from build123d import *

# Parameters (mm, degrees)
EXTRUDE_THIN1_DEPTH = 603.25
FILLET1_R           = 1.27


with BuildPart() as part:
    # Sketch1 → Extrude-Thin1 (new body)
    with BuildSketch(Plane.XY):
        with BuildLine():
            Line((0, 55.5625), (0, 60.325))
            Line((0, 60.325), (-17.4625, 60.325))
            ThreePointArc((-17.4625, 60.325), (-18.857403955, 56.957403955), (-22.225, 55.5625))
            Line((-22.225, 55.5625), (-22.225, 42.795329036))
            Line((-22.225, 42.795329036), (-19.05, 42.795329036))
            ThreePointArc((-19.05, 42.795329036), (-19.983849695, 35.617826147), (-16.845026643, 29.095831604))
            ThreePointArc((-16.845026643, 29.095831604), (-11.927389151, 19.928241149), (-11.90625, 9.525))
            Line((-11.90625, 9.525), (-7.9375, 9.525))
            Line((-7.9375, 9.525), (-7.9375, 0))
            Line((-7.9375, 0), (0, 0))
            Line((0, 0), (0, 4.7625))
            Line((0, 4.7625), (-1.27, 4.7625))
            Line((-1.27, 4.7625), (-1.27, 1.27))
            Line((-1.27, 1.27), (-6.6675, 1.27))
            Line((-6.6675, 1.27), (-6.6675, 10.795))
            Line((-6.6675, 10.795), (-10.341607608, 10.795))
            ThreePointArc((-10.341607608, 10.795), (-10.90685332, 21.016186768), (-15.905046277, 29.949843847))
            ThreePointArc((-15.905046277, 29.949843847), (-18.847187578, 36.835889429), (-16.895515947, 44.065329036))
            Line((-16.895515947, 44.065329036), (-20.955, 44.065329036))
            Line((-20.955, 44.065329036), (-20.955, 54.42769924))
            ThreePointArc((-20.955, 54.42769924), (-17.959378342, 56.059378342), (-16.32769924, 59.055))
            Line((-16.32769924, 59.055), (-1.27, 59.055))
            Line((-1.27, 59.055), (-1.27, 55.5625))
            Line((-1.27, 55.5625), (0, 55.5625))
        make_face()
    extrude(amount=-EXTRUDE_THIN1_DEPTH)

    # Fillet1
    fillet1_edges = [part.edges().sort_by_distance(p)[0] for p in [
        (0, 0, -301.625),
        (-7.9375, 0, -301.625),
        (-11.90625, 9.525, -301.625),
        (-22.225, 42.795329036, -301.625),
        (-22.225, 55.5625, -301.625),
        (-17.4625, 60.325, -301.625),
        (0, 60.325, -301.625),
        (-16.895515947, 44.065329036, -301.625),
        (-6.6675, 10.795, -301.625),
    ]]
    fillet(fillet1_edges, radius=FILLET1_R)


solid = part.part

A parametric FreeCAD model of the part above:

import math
import FreeCAD as App
import Part
import Sketcher
from FreeCAD import Vector
Q = App.Units.Quantity


def edges_at(feature, points):
    """Names of the edges that pass closest to the given points."""
    edges = feature.Shape.Edges
    near = lambda p: min(range(len(edges)), key=lambda i: edges[i].distToShape(Part.Vertex(*p))[0])
    return sorted({f"Edge{near(p) + 1}" for p in points})

doc = App.newDocument("Part")
body = doc.addObject("PartDesign::Body", "Body")

sketch1 = doc.addObject("Sketcher::SketchObject", "Sketch")
body.addObject(sketch1)
sketch1.AttachmentSupport = (doc.XY_Plane, [""])
sketch1.MapMode = "FlatFace"
sketch1.addGeometry([
    Part.LineSegment(Vector(0, 55.6, 0), Vector(0, 60.3, 0)),
    Part.LineSegment(Vector(0, 60.3, 0), Vector(-17.5, 60.3, 0)),
    Part.ArcOfCircle(Part.Circle(Vector(-22.2, 60.3, 0), Vector(0, 0, 1), 4.8), math.radians(-90), math.radians(0)),
    Part.LineSegment(Vector(-22.2, 55.6, 0), Vector(-22.2, 42.8, 0)),
    Part.LineSegment(Vector(-22.2, 42.8, 0), Vector(-19.1, 42.8, 0)),
    Part.ArcOfCircle(Part.Circle(Vector(-7.4, 37.6, 0), Vector(0, 0, 1), 12.7), math.radians(156), math.radians(222)),
    Part.ArcOfCircle(Part.Circle(Vector(-32.7, 14.7, 0), Vector(0, 0, 1), 21.4), math.radians(-14), math.radians(42)),
    Part.LineSegment(Vector(-11.9, 9.5, 0), Vector(-7.9, 9.5, 0)),
    Part.LineSegment(Vector(-7.9, 9.5, 0), Vector(-7.9, 0, 0)),
    Part.LineSegment(Vector(-7.9, 0, 0), Vector(0, 0, 0)),
    Part.LineSegment(Vector(0, 0, 0), Vector(0, 4.8, 0)),
    Part.LineSegment(Vector(0, 4.8, 0), Vector(-1.3, 4.8, 0)),
    Part.LineSegment(Vector(-1.3, 4.8, 0), Vector(-1.3, 1.3, 0)),
    Part.LineSegment(Vector(-1.3, 1.3, 0), Vector(-6.7, 1.3, 0)),
    Part.LineSegment(Vector(-6.7, 1.3, 0), Vector(-6.7, 10.8, 0)),
    Part.LineSegment(Vector(-6.7, 10.8, 0), Vector(-10.3, 10.8, 0)),
    Part.ArcOfCircle(Part.Circle(Vector(-32.7, 14.7, 0), Vector(0, 0, 1), 22.7), math.radians(-10), math.radians(42)),
    Part.ArcOfCircle(Part.Circle(Vector(-7.4, 37.6, 0), Vector(0, 0, 1), 11.4), math.radians(146), math.radians(222)),
    Part.LineSegment(Vector(-16.9, 44.1, 0), Vector(-21, 44.1, 0)),
    Part.LineSegment(Vector(-21, 44.1, 0), Vector(-21, 54.4, 0)),
    Part.ArcOfCircle(Part.Circle(Vector(-22.2, 60.3, 0), Vector(0, 0, 1), 6), math.radians(-78), math.radians(-12)),
    Part.LineSegment(Vector(-16.3, 59.1, 0), Vector(-1.3, 59.1, 0)),
    Part.LineSegment(Vector(-1.3, 59.1, 0), Vector(-1.3, 55.6, 0)),
    Part.LineSegment(Vector(-1.3, 55.6, 0), Vector(0, 55.6, 0)),
], False)
sketch1.addConstraint([
    Sketcher.Constraint("Coincident", 0, 2, 1, 1),
    Sketcher.Constraint("Coincident", 1, 2, 2, 2),
    Sketcher.Constraint("Coincident", 2, 1, 3, 1),
    Sketcher.Constraint("Coincident", 3, 2, 4, 1),
    Sketcher.Constraint("Coincident", 4, 2, 5, 1),
    Sketcher.Constraint("Tangent", 5, 2, 6, 2),
    Sketcher.Constraint("Coincident", 6, 1, 7, 1),
    Sketcher.Constraint("Coincident", 7, 2, 8, 1),
    Sketcher.Constraint("Coincident", 8, 2, 9, 1),
    Sketcher.Constraint("Coincident", 9, 2, 10, 1),
    Sketcher.Constraint("Coincident", 10, 2, 11, 1),
    Sketcher.Constraint("Coincident", 11, 2, 12, 1),
    Sketcher.Constraint("Coincident", 12, 2, 13, 1),
    Sketcher.Constraint("Coincident", 13, 2, 14, 1),
    Sketcher.Constraint("Coincident", 14, 2, 15, 1),
    Sketcher.Constraint("Coincident", 15, 2, 16, 1),
    Sketcher.Constraint("Tangent", 16, 2, 17, 2),
    Sketcher.Constraint("Coincident", 17, 1, 18, 1),
    Sketcher.Constraint("Coincident", 18, 2, 19, 1),
    Sketcher.Constraint("Coincident", 19, 2, 20, 1),
    Sketcher.Constraint("Coincident", 20, 2, 21, 1),
    Sketcher.Constraint("Coincident", 21, 2, 22, 1),
    Sketcher.Constraint("Coincident", 22, 2, 23, 1),
    Sketcher.Constraint("Coincident", 23, 2, 0, 1),
    Sketcher.Constraint("Vertical", 0),
    Sketcher.Constraint("Horizontal", 1),
    Sketcher.Constraint("Vertical", 3),
    Sketcher.Constraint("Horizontal", 4),
    Sketcher.Constraint("Horizontal", 7),
    Sketcher.Constraint("Vertical", 8),
    Sketcher.Constraint("Horizontal", 9),
    Sketcher.Constraint("Vertical", 10),
    Sketcher.Constraint("Horizontal", 11),
    Sketcher.Constraint("Vertical", 12),
    Sketcher.Constraint("Horizontal", 13),
    Sketcher.Constraint("Vertical", 14),
    Sketcher.Constraint("Horizontal", 15),
    Sketcher.Constraint("Horizontal", 18),
    Sketcher.Constraint("Vertical", 19),
    Sketcher.Constraint("Horizontal", 21),
    Sketcher.Constraint("Vertical", 22),
    Sketcher.Constraint("Horizontal", 23),
    Sketcher.Constraint("Coincident", 9, 2, -1, 1),
    Sketcher.Constraint("Coincident", 16, 3, 6, 3),
    Sketcher.Constraint("Coincident", 17, 3, 5, 3),
    Sketcher.Constraint("Coincident", 20, 3, 2, 3),
    Sketcher.Constraint("PointOnObject", 0, 2, -2),
    Sketcher.Constraint("Horizontal", 20, 3, 0, 2),
    Sketcher.Constraint("Horizontal", 2, 1, 22, 2),
    Sketcher.Constraint("Vertical", 20, 3, 2, 1),
    Sketcher.Constraint("Vertical", 12, 2, 21, 2),
    Sketcher.Constraint("Equal", 0, 10),
    Sketcher.Constraint("Equal", 8, 14),
    Sketcher.Constraint("Equal", 12, 22),
    Sketcher.Constraint("Radius", 5, Q("0.5 in")),
    Sketcher.Constraint("Radius", 17, Q("0.45 in")),
    Sketcher.Constraint("Radius", 2, Q("0.1875 in")),
    Sketcher.Constraint("Radius", 6, Q("0.84375 in")),
    Sketcher.Constraint("DistanceX", 11, 2, 11, 1, Q("0.05 in")),
    Sketcher.Constraint("Radius", 20, Q("0.2375 in")),
    Sketcher.Constraint("DistanceX", 1, 2, 1, 1, Q("0.6875 in")),
    Sketcher.Constraint("DistanceX", 4, 1, 4, 2, Q("0.125 in")),
    Sketcher.Constraint("DistanceX", 7, 1, 7, 2, Q("0.15625 in")),
    Sketcher.Constraint("DistanceX", 9, 1, 9, 2, Q("0.3125 in")),
    Sketcher.Constraint("DistanceY", 8, 2, 8, 1, Q("0.375 in")),
    Sketcher.Constraint("DistanceY", -1, 1, 12, 2, Q("0.05 in")),
    Sketcher.Constraint("DistanceX", 8, 2, 13, 2, Q("0.05 in")),
    Sketcher.Constraint("DistanceY", 4, 2, 17, 1, Q("0.05 in")),
    Sketcher.Constraint("DistanceX", 3, 2, 18, 2, Q("0.05 in")),
    Sketcher.Constraint("DistanceY", -1, 1, 2, 3, Q("2.375 in")),
    Sketcher.Constraint("DistanceY", -1, 1, 6, 3, Q("0.578125 in")),
    Sketcher.Constraint("DistanceY", 17, 3, 3, 2, Q("0.203125 in")),
])
pad1 = doc.addObject("PartDesign::Pad", "Pad")
body.addObject(pad1)
pad1.Profile = sketch1
pad1.Length = Q("23.75 in")
pad1.Reversed = True
doc.recompute()

fillet = doc.addObject("PartDesign::Fillet", "Fillet")
body.addObject(fillet)
fillet.Base = (pad1, edges_at(pad1, [
    (0, 0, -301.625),
    (-7.938, 0, -301.625),
    (-11.906, 9.525, -301.625),
    (-22.225, 42.795, -301.625),
    (-22.225, 55.562, -301.625),
    (-17.462, 60.325, -301.625),
    (0, 60.325, -301.625),
    (-16.896, 44.065, -301.625),
    (-6.668, 10.795, -301.625),
]))
fillet.Radius = Q("0.05 in")

doc.recompute()
